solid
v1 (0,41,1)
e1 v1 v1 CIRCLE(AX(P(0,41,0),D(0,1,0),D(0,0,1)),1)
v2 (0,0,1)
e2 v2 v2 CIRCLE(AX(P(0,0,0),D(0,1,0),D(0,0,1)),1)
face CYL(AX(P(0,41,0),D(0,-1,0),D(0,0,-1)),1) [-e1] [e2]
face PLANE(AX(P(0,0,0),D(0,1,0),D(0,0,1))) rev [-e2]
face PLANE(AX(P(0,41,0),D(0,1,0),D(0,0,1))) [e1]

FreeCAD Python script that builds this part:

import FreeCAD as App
import Part
import Sketcher

V = App.Vector

doc = App.newDocument("Part")
body = doc.addObject("PartDesign::Body", "Body")

# Sketch on XZ plane
sketch1 = body.newObject("Sketcher::SketchObject", "Sketch")
sketch1.AttachmentSupport = (doc.getObject("XZ_Plane"), [""])
sketch1.MapMode = "FlatFace"
sketch1.addGeometry(Part.Circle(V(0, 0, 0), V(0, 0, 1), 1), False)
sketch1.addConstraint(Sketcher.Constraint("Coincident", 0, 3, -1, 1))
sketch1.addConstraint(Sketcher.Constraint("Diameter", 0, 2.0))
pad1 = body.newObject("PartDesign::Pad", "Pad")
pad1.Profile = sketch1
pad1.Length = 41
pad1.Reversed = True

doc.recompute()
